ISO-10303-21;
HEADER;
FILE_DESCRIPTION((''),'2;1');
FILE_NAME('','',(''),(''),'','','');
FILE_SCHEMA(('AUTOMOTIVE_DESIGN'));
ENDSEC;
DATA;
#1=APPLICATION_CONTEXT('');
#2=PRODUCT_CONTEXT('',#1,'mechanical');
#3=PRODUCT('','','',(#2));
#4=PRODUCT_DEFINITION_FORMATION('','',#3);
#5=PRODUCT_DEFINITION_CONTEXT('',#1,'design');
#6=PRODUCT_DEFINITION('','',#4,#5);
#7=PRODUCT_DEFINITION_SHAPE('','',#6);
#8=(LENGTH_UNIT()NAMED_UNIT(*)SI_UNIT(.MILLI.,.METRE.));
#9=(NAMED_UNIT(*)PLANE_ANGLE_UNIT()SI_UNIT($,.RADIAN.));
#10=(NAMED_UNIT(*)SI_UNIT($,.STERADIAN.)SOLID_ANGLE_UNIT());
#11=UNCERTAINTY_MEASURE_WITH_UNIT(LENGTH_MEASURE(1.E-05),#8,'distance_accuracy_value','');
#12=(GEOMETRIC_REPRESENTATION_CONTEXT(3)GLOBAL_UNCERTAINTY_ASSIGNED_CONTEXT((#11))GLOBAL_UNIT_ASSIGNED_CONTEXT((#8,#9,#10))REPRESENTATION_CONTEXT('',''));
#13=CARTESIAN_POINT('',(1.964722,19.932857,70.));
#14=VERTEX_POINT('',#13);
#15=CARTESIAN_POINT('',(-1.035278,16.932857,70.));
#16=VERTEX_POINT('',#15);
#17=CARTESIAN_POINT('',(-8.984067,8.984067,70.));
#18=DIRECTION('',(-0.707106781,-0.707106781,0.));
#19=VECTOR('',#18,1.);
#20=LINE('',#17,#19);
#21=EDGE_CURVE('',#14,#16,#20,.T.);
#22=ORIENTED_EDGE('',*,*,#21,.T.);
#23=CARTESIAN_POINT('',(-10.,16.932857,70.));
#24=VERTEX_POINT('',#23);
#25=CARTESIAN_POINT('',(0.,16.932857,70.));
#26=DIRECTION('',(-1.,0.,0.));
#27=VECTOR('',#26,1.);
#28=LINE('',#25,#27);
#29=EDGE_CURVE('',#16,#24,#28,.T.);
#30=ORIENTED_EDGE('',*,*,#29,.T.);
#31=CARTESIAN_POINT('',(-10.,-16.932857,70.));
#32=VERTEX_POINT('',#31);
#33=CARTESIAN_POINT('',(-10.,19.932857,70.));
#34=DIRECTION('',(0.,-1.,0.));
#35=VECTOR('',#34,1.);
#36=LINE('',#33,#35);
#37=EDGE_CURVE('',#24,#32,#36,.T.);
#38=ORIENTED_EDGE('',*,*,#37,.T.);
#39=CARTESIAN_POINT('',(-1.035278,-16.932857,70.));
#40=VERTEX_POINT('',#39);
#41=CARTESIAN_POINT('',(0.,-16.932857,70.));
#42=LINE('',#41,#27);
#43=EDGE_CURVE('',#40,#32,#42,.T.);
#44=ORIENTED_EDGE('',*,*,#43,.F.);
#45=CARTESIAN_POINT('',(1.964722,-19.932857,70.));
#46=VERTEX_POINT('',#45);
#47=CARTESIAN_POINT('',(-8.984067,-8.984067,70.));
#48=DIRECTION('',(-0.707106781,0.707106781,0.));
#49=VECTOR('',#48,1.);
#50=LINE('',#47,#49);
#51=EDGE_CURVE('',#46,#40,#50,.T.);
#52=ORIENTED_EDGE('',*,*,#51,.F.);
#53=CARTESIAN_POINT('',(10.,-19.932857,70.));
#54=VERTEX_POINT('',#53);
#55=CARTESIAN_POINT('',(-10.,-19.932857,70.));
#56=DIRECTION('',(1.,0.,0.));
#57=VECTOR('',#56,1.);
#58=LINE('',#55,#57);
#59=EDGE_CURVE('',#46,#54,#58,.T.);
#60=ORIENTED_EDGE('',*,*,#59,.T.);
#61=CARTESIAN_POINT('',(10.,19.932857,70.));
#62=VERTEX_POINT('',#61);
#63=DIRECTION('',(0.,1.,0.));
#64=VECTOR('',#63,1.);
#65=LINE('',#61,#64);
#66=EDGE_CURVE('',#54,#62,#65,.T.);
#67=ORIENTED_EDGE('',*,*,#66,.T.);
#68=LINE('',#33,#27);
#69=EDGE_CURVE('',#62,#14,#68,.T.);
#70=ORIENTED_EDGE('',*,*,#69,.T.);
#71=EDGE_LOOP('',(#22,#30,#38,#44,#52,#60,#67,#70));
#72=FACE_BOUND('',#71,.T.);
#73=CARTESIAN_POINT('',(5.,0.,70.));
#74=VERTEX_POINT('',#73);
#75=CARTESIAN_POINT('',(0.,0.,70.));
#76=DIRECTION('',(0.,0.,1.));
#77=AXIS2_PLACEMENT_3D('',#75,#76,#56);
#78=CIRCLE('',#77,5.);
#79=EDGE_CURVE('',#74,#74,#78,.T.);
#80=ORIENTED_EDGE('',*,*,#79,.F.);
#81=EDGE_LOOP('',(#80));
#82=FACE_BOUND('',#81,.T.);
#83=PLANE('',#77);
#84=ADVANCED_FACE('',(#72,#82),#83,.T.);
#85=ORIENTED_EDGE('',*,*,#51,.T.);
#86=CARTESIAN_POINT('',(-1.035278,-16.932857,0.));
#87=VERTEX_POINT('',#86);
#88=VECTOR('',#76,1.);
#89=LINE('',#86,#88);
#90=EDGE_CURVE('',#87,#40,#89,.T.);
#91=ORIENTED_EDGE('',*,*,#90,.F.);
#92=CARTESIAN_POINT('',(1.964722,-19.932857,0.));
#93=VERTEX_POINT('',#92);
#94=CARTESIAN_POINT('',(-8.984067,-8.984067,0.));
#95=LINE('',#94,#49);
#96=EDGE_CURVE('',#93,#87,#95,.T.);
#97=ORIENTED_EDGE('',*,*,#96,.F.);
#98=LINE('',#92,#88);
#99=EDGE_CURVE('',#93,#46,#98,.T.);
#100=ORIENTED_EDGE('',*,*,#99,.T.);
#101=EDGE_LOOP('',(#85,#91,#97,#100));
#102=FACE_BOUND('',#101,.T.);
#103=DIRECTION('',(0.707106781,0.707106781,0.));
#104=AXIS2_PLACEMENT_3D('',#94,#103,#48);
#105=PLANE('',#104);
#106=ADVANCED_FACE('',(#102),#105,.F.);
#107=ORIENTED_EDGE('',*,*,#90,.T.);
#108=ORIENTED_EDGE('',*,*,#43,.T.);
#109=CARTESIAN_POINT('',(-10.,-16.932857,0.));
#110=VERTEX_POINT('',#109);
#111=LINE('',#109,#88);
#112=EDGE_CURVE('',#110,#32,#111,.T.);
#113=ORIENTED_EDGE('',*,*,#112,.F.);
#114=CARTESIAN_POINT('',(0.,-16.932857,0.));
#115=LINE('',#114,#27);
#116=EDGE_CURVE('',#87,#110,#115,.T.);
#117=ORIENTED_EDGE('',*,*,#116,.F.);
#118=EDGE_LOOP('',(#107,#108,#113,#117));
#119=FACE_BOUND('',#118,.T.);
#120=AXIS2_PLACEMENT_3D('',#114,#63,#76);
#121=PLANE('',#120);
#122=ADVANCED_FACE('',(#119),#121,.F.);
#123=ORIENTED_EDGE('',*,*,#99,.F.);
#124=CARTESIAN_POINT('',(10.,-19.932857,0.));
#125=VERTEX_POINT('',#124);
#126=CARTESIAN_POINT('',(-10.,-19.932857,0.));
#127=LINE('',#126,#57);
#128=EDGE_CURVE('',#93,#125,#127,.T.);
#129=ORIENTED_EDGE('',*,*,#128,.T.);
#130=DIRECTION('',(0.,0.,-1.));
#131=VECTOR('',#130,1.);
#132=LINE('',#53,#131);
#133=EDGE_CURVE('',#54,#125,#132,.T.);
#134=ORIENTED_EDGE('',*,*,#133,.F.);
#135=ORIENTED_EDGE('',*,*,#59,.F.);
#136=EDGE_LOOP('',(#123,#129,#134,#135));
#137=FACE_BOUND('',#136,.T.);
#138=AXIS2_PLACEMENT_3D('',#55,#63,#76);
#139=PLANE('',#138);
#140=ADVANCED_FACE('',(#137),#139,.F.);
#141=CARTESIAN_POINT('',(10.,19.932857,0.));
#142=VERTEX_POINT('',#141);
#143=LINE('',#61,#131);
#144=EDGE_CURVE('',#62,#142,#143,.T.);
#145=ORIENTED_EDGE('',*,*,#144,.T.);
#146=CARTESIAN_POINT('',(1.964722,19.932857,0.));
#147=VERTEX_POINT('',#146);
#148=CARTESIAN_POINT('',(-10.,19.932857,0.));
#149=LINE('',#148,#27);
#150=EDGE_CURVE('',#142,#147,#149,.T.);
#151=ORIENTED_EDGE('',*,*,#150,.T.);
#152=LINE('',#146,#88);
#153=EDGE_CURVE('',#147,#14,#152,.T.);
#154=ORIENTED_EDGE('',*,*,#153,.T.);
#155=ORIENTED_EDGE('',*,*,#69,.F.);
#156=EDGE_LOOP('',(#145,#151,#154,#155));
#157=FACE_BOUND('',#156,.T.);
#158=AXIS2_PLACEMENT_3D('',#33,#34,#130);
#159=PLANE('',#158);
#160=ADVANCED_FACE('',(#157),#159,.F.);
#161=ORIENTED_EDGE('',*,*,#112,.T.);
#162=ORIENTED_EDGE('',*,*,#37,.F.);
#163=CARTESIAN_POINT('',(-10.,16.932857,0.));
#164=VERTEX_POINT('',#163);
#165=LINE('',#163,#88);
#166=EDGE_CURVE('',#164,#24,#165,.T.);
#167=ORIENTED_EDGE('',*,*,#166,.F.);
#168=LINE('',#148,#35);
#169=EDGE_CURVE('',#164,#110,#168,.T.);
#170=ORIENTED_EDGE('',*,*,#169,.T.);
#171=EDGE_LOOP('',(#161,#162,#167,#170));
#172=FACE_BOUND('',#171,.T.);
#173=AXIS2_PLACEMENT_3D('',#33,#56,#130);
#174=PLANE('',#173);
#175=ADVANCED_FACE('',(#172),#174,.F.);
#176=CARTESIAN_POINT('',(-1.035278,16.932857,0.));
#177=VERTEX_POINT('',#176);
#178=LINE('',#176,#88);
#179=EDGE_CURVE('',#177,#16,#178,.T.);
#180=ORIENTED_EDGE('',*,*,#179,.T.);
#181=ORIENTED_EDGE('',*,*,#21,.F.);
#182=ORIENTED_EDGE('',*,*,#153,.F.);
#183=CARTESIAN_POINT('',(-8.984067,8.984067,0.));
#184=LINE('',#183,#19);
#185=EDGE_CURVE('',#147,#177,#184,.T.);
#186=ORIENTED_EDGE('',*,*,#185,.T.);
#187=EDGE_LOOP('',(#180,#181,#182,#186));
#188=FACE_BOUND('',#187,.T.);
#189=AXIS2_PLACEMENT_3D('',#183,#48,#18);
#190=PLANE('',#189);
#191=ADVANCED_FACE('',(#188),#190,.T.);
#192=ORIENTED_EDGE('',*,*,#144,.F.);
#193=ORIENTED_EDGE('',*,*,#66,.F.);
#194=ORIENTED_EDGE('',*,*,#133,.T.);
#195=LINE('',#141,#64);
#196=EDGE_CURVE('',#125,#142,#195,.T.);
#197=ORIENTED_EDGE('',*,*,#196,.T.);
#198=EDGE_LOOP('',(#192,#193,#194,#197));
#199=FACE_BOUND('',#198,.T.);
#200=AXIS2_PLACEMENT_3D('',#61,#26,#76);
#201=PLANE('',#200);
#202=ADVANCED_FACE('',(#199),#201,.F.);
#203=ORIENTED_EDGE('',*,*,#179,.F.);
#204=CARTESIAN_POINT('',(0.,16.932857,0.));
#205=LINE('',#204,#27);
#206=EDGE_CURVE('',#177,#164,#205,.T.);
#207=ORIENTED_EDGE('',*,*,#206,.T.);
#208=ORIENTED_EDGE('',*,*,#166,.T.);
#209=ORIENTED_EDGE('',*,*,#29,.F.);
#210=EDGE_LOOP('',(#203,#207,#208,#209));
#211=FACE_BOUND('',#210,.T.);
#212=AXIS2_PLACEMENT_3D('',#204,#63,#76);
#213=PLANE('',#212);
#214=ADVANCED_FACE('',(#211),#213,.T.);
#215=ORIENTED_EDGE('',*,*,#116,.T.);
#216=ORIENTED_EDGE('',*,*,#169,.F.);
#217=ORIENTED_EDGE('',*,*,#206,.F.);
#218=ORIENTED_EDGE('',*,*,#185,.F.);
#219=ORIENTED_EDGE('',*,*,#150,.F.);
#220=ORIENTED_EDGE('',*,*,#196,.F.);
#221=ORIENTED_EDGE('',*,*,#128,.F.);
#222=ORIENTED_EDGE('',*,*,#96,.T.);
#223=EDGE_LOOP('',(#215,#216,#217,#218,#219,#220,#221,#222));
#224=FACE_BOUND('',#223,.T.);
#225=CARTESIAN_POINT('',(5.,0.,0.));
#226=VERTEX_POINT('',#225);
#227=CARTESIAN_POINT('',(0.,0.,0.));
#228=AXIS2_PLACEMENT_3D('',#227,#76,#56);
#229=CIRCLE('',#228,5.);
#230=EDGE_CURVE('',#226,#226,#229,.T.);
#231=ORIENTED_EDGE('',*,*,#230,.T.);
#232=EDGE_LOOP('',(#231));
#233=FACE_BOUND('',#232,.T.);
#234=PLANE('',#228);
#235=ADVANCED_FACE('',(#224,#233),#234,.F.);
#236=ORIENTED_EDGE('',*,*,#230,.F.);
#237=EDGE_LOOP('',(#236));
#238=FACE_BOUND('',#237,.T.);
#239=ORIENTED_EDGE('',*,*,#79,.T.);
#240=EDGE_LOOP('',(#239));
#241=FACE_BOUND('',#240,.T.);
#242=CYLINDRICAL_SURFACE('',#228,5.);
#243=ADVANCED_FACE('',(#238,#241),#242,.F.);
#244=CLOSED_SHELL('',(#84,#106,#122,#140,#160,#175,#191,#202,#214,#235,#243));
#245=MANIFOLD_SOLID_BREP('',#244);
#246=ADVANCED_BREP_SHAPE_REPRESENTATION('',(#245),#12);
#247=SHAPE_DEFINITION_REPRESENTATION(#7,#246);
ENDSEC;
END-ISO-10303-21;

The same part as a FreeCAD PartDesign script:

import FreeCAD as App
import Part
import Sketcher

V = App.Vector
Q = App.Units.Quantity


def add_polygon(sketch, points):
    """Adds a closed chain of lines whose ends are joined by coincident constraints."""
    first, n = sketch.GeometryCount, len(points)
    for a, b in zip(points, points[1:] + points[:1]):
        sketch.addGeometry(Part.LineSegment(App.Vector(*a, 0), App.Vector(*b, 0)), False)
    for i in range(n):
        sketch.addConstraint(Sketcher.Constraint("Coincident", first + i, 2, first + (i + 1) % n, 1))

doc = App.newDocument("Part")
body = doc.addObject("PartDesign::Body", "Body")

# Sketch on XY plane
sketch1 = body.newObject("Sketcher::SketchObject", "Sketch")
sketch1.AttachmentSupport = (doc.getObject("XY_Plane"), [""])
sketch1.MapMode = "FlatFace"
add_polygon(sketch1, [(-10, 20), (-10, -20), (10, -20), (10, 20)])  # lines 0-3
sketch1.addConstraint([
    Sketcher.Constraint("Vertical", 0),
    Sketcher.Constraint("Horizontal", 1),
    Sketcher.Constraint("Vertical", 2),
    Sketcher.Constraint("Horizontal", 3),
    Sketcher.Constraint("Symmetric", 0, 2, 2, 2, -1, 1),
    Sketcher.Constraint("DistanceX", 1, 1, 1, 2, Q("20 mm")),
    Sketcher.Constraint("DistanceY", 0, 2, 0, 1, Q("39.865713 mm")),
])
pad1 = body.newObject("PartDesign::Pad", "Pad")
pad1.Profile = sketch1
pad1.Length = 70

# Sketch on XY plane
sketch2 = body.newObject("Sketcher::SketchObject", "Sketch001")
sketch2.AttachmentSupport = (doc.getObject("XY_Plane"), [""])
sketch2.MapMode = "FlatFace"
sketch2.AttachmentOffset = App.Placement(V(0, 0, 70), App.Rotation())
add_polygon(sketch2, [(-10, -19.9), (2, -19.9), (-1, -16.9), (-10, -16.9)])  # lines 0-3
add_polygon(sketch2, [(-10, 19.9), (-10, 16.9), (-1, 16.9), (2, 19.9)])  # lines 4-7
sketch2.addConstraint([
    Sketcher.Constraint("Horizontal", 0),
    Sketcher.Constraint("Horizontal", 2),
    Sketcher.Constraint("Vertical", 3),
    Sketcher.Constraint("Vertical", 4),
    Sketcher.Constraint("Horizontal", 5),
    Sketcher.Constraint("Horizontal", 7),
    Sketcher.Constraint("Symmetric", 2, 2, 4, 2, -1),
    Sketcher.Constraint("Symmetric", 0, 2, 6, 2, -1),
    Sketcher.Constraint("Perpendicular", 1, 6),
    Sketcher.Constraint("Vertical", 1, 2, 5, 2),
    Sketcher.Constraint("DistanceY", 3, 2, 3, 1, Q("3 mm")),
    Sketcher.Constraint("DistanceX", 2, 2, -1, 1, Q("10 mm")),
    Sketcher.Constraint("DistanceX", 0, 1, 0, 2, Q("11.964722 mm")),
    Sketcher.Constraint("DistanceY", 0, 2, -1, 1, Q("19.932857 mm")),
])
pocket1 = body.newObject("PartDesign::Pocket", "Pocket")
pocket1.Profile = sketch2
pocket1.Length = 70

# Sketch on XY plane
sketch3 = body.newObject("Sketcher::SketchObject", "Sketch002")
sketch3.AttachmentSupport = (doc.getObject("XY_Plane"), [""])
sketch3.MapMode = "FlatFace"
sketch3.AttachmentOffset = App.Placement(V(0, 0, 70), App.Rotation())
sketch3.addGeometry(Part.Circle(V(0, 0, 0), V(0, 0, 1), 5), False)
sketch3.addConstraint([
    Sketcher.Constraint("Coincident", 0, 3, -1, 1),
    Sketcher.Constraint("Diameter", 0, Q("10 mm")),
])
pocket2 = body.newObject("PartDesign::Pocket", "Pocket001")
pocket2.Profile = sketch3
pocket2.Type = "ThroughAll"

doc.recompute()
